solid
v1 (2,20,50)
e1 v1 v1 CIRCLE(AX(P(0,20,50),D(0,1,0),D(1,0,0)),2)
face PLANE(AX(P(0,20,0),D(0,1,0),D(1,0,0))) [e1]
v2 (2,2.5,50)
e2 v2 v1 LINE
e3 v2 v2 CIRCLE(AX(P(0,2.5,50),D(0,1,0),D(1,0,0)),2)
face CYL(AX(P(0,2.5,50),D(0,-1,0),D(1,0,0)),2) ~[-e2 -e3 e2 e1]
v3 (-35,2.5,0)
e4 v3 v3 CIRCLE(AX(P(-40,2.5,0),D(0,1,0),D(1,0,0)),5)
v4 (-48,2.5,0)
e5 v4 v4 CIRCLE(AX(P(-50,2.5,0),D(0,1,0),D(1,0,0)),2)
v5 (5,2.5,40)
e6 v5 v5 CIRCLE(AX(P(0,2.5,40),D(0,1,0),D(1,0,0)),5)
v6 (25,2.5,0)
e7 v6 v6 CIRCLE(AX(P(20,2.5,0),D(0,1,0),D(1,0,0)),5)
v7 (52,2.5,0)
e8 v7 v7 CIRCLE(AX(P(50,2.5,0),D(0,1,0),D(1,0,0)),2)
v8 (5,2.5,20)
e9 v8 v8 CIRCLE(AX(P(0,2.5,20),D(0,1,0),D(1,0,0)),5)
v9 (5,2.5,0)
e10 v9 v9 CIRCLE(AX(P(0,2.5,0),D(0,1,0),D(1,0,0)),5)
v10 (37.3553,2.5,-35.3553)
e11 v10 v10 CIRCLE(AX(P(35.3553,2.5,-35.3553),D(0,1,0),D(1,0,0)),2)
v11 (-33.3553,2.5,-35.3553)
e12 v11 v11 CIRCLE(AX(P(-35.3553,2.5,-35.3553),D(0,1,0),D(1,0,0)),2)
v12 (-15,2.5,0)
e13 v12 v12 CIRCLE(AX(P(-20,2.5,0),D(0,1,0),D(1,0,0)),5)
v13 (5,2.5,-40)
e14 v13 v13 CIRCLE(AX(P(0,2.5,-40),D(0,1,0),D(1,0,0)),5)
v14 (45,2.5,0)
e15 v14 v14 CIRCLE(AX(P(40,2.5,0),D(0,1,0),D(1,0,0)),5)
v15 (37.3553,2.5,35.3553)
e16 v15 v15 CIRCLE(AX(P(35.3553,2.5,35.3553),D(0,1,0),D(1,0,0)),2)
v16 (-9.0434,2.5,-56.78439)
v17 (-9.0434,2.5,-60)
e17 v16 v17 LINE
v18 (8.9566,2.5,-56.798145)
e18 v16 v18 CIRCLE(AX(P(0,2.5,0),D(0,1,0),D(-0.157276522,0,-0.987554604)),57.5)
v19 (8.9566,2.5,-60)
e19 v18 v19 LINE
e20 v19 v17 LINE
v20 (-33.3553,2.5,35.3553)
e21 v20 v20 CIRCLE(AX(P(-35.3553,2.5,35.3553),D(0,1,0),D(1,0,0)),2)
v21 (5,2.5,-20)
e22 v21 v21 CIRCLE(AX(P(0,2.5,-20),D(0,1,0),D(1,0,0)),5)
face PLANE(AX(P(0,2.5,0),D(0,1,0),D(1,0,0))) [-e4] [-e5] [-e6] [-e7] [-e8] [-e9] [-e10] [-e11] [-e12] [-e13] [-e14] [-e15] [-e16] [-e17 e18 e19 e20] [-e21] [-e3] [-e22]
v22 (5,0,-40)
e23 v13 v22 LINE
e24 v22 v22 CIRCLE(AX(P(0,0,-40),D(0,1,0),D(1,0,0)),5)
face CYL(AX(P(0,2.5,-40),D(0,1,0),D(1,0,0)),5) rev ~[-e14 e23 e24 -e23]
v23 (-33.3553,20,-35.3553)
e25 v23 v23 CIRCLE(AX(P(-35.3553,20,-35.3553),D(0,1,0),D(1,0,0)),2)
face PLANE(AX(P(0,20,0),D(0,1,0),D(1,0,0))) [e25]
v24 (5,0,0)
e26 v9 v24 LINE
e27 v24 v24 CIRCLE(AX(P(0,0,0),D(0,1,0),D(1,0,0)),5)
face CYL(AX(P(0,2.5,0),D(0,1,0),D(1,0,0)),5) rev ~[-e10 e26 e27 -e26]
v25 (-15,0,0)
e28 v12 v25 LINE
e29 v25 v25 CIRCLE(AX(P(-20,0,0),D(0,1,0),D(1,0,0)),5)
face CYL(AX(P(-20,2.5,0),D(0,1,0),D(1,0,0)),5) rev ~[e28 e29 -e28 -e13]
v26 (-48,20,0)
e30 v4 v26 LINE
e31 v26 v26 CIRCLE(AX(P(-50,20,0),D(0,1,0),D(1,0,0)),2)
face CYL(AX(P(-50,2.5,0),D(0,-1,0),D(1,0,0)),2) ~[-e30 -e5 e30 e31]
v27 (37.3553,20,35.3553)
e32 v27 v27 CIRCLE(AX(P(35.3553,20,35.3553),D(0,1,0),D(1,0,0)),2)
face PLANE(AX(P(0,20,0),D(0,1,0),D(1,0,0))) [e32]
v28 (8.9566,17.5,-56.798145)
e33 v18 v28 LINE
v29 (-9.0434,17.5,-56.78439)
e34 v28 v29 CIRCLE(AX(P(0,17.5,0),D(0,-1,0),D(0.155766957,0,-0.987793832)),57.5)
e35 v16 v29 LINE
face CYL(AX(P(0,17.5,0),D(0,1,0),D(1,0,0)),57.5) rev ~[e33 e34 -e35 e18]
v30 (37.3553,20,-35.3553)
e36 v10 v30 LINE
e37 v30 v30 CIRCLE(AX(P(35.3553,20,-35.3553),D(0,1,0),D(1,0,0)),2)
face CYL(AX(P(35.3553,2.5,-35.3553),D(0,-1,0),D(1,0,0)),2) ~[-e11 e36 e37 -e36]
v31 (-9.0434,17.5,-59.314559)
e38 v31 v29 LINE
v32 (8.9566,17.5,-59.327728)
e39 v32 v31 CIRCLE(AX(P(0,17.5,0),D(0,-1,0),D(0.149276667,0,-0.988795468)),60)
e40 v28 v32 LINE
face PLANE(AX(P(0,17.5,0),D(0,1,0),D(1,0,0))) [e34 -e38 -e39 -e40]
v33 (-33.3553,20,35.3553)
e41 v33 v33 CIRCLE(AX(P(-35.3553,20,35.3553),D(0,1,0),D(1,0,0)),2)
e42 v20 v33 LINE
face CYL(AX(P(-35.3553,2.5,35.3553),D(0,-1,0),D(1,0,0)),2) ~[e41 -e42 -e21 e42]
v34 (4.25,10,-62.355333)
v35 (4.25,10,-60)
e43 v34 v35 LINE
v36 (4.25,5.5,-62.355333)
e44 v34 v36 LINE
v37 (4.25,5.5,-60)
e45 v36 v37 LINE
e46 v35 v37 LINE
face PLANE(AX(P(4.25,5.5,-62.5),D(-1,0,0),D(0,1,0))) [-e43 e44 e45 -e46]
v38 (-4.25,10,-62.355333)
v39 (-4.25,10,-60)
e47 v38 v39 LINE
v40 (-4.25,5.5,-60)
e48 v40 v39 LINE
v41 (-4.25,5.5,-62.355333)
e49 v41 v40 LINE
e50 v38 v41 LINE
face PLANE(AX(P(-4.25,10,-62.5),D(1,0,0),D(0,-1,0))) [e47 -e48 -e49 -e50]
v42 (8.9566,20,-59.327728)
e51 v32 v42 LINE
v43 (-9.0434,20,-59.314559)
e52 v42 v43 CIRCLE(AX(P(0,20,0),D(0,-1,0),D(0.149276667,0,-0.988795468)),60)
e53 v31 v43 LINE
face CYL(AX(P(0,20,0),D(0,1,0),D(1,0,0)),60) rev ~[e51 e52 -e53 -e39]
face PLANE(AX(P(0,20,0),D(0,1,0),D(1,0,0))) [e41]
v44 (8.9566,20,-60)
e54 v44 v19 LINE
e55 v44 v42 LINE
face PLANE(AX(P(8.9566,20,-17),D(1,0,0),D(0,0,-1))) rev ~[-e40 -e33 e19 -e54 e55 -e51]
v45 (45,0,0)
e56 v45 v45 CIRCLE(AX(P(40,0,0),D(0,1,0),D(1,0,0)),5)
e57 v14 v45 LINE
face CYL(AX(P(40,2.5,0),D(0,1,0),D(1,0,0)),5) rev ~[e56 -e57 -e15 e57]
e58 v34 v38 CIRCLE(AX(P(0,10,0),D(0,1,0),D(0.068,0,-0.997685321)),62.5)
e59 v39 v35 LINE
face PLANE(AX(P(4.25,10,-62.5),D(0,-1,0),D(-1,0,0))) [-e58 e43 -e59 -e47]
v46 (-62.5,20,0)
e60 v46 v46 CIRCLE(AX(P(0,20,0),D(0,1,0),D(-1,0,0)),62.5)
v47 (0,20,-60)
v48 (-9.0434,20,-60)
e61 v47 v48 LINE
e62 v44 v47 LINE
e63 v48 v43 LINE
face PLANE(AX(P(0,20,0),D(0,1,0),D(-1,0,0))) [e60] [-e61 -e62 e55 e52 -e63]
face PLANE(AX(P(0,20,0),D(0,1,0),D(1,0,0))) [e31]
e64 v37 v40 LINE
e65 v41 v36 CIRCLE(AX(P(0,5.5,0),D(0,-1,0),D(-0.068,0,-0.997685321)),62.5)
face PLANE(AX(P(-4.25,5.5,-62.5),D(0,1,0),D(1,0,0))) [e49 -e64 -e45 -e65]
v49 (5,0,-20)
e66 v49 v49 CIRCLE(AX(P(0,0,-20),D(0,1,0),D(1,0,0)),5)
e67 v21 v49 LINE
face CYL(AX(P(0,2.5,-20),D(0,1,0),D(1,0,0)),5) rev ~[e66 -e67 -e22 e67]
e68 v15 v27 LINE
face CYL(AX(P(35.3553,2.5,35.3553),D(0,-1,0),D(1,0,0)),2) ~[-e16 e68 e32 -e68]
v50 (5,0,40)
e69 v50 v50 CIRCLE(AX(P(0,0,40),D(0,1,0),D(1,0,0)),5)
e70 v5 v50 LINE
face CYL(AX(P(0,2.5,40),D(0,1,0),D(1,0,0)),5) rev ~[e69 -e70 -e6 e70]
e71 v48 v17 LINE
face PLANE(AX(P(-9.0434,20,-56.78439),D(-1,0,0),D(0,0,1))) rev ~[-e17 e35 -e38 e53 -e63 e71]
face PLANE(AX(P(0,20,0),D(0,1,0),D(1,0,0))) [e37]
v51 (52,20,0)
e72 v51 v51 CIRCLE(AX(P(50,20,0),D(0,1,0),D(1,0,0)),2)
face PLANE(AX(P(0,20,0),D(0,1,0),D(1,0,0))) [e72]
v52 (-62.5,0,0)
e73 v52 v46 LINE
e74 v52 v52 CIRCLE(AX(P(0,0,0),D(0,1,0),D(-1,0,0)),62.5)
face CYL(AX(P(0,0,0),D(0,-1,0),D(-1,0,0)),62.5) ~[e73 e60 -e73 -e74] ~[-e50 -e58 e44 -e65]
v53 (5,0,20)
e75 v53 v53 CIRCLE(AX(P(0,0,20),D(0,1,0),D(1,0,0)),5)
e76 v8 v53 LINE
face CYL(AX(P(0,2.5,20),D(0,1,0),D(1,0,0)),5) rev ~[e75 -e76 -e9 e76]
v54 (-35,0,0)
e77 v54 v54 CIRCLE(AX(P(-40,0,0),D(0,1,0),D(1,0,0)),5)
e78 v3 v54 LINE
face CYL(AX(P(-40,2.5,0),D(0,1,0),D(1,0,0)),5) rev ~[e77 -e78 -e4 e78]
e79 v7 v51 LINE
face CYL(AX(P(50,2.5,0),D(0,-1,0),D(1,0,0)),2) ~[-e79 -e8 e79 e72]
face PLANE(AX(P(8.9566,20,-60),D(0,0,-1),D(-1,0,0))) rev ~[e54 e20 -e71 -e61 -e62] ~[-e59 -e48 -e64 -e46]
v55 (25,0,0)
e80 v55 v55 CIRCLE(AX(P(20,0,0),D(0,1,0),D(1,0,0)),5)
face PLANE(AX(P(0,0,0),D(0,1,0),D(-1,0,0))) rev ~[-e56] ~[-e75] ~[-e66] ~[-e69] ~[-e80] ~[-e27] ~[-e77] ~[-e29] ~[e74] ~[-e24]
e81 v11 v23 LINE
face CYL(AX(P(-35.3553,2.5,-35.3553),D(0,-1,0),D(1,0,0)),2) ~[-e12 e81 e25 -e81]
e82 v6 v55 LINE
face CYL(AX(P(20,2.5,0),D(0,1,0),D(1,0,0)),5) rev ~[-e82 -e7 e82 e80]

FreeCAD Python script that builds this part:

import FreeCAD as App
import Part
import Sketcher

V = App.Vector

doc = App.newDocument("Part")
body = doc.addObject("PartDesign::Body", "Body")

# Sketch on XZ plane
sketch1 = body.newObject("Sketcher::SketchObject", "Sketch")
sketch1.AttachmentSupport = (doc.getObject("XZ_Plane"), [""])
sketch1.MapMode = "FlatFace"
sketch1.addGeometry(Part.Circle(V(0, 0, 0), V(0, 0, 1), 62.5), False)
sketch1.addConstraint(Sketcher.Constraint("Coincident", 0, 3, -1, 1))
sketch1.addConstraint(Sketcher.Constraint("Diameter", 0, 125.0))
pad1 = body.newObject("PartDesign::Pad", "Pad")
pad1.Profile = sketch1
pad1.Length = 20
pad1.Reversed = True

# Sketch on XZ plane
sketch2 = body.newObject("Sketcher::SketchObject", "Sketch001")
sketch2.AttachmentSupport = (doc.getObject("XZ_Plane"), [""])
sketch2.MapMode = "FlatFace"
sketch2.AttachmentOffset = App.Placement(V(0, 0, -20), App.Rotation())
sketch2.addGeometry(Part.Circle(V(0, 0, 0), V(0, 0, 1), 60), False)
sketch2.addConstraint(Sketcher.Constraint("Coincident", 0, 3, -1, 1))
sketch2.addConstraint(Sketcher.Constraint("Diameter", 0, 120.0))
pocket1 = body.newObject("PartDesign::Pocket", "Pocket")
pocket1.Profile = sketch2
pocket1.Length = 2.5
pocket1.Reversed = True

# Sketch on XZ plane
sketch3 = body.newObject("Sketcher::SketchObject", "Sketch002")
sketch3.AttachmentSupport = (doc.getObject("XZ_Plane"), [""])
sketch3.MapMode = "FlatFace"
sketch3.AttachmentOffset = App.Placement(V(0, 0, -17.5), App.Rotation())
sketch3.addGeometry(Part.Circle(V(0, 0, 0), V(0, 0, 1), 57.5), False)
sketch3.addConstraint(Sketcher.Constraint("Coincident", 0, 3, -1, 1))
sketch3.addConstraint(Sketcher.Constraint("Diameter", 0, 115.0))
pocket2 = body.newObject("PartDesign::Pocket", "Pocket001")
pocket2.Profile = sketch3
pocket2.Length = 15
pocket2.Reversed = True

# Sketch on XZ plane
sketch4 = body.newObject("Sketcher::SketchObject", "Sketch003")
sketch4.AttachmentSupport = (doc.getObject("XZ_Plane"), [""])
sketch4.MapMode = "FlatFace"
sketch4.AttachmentOffset = App.Placement(V(0, 0, -2.5), App.Rotation())
sketch4.addGeometry(Part.Circle(V(0, 0, 0), V(0, 0, 1), 5), False)
sketch4.addGeometry(Part.Circle(V(0, -20, 0), V(0, 0, 1), 5), False)
sketch4.addGeometry(Part.Circle(V(0, -40, 0), V(0, 0, 1), 5), False)
sketch4.addGeometry(Part.Circle(V(20, 0, 0), V(0, 0, 1), 5), False)
sketch4.addGeometry(Part.Circle(V(40, 0, 0), V(0, 0, 1), 5), False)
sketch4.addGeometry(Part.Circle(V(0, 40, 0), V(0, 0, 1), 5), False)
sketch4.addGeometry(Part.Circle(V(0, 20, 0), V(0, 0, 1), 5), False)
sketch4.addGeometry(Part.Circle(V(-20, 0, 0), V(0, 0, 1), 5), False)
sketch4.addGeometry(Part.Circle(V(-40, 0, 0), V(0, 0, 1), 5), False)
sketch4.addConstraint(Sketcher.Constraint("Coincident", 0, 3, -1, 1))
sketch4.addConstraint(Sketcher.Constraint("Equal", 0, 1))
sketch4.addConstraint(Sketcher.Constraint("Equal", 1, 2))
sketch4.addConstraint(Sketcher.Constraint("Equal", 2, 3))
sketch4.addConstraint(Sketcher.Constraint("Equal", 3, 4))
sketch4.addConstraint(Sketcher.Constraint("Equal", 4, 5))
sketch4.addConstraint(Sketcher.Constraint("Equal", 5, 6))
sketch4.addConstraint(Sketcher.Constraint("Equal", 6, 7))
sketch4.addConstraint(Sketcher.Constraint("Equal", 7, 8))
sketch4.addConstraint(Sketcher.Constraint("Symmetric", 2, 3, 5, 3, -1, 1))
sketch4.addConstraint(Sketcher.Constraint("Symmetric", 1, 3, 6, 3, -1, 1))
sketch4.addConstraint(Sketcher.Constraint("Symmetric", 3, 3, 7, 3, -1, 1))
sketch4.addConstraint(Sketcher.Constraint("Symmetric", 4, 3, 8, 3, -1, 1))
sketch4.addConstraint(Sketcher.Constraint("PointOnObject", 1, 3, -2))
sketch4.addConstraint(Sketcher.Constraint("PointOnObject", 2, 3, -2))
sketch4.addConstraint(Sketcher.Constraint("PointOnObject", 3, 3, -1))
sketch4.addConstraint(Sketcher.Constraint("PointOnObject", 4, 3, -1))
sketch4.addConstraint(Sketcher.Constraint("Diameter", 0, 10.0))
sketch4.addConstraint(Sketcher.Constraint("DistanceY", 1, 3, -1, 1, 20.0))
sketch4.addConstraint(Sketcher.Constraint("DistanceX", -1, 1, 3, 3, 20.0))
sketch4.addConstraint(Sketcher.Constraint("DistanceY", 2, 3, 1, 3, 20.0))
sketch4.addConstraint(Sketcher.Constraint("DistanceX", 3, 3, 4, 3, 20.0))
pocket3 = body.newObject("PartDesign::Pocket", "Pocket002")
pocket3.Profile = sketch4
pocket3.Type = "UpToFirst"
pocket3.Reversed = True

# Sketch on XY plane
sketch5 = body.newObject("Sketcher::SketchObject", "Sketch004")
sketch5.AttachmentSupport = (doc.getObject("XY_Plane"), [""])
sketch5.MapMode = "FlatFace"
sketch5.AttachmentOffset = App.Placement(V(0, 0, -62.5), App.Rotation())
sketch5.addGeometry(Part.LineSegment(V(4.25, 5.5, 0), V(4.25, 10, 0)), False)
sketch5.addGeometry(Part.LineSegment(V(4.25, 10, 0), V(-4.25, 10, 0)), False)
sketch5.addGeometry(Part.LineSegment(V(-4.25, 10, 0), V(-4.25, 5.5, 0)), False)
sketch5.addGeometry(Part.LineSegment(V(-4.25, 5.5, 0), V(4.25, 5.5, 0)), False)
sketch5.addConstraint(Sketcher.Constraint("Coincident", 0, 2, 1, 1))
sketch5.addConstraint(Sketcher.Constraint("Coincident", 1, 2, 2, 1))
sketch5.addConstraint(Sketcher.Constraint("Coincident", 2, 2, 3, 1))
sketch5.addConstraint(Sketcher.Constraint("Coincident", 3, 2, 0, 1))
sketch5.addConstraint(Sketcher.Constraint("Vertical", 0))
sketch5.addConstraint(Sketcher.Constraint("Horizontal", 1))
sketch5.addConstraint(Sketcher.Constraint("Vertical", 2))
sketch5.addConstraint(Sketcher.Constraint("Horizontal", 3))
sketch5.addConstraint(Sketcher.Constraint("DistanceX", 1, 2, 1, 1, 8.5))
sketch5.addConstraint(Sketcher.Constraint("DistanceY", 0, 1, 0, 2, 4.5))
sketch5.addConstraint(Sketcher.Constraint("DistanceY", -1, 1, 0, 2, 10.0))
sketch5.addConstraint(Sketcher.Constraint("DistanceX", -1, 1, 0, 2, 4.25))
pocket4 = body.newObject("PartDesign::Pocket", "Pocket003")
pocket4.Profile = sketch5
pocket4.Length = 17.5
pocket4.Reversed = True

# Sketch on XZ plane
sketch6 = body.newObject("Sketcher::SketchObject", "Sketch005")
sketch6.AttachmentSupport = (doc.getObject("XZ_Plane"), [""])
sketch6.MapMode = "FlatFace"
sketch6.AttachmentOffset = App.Placement(V(0, 0, -2.5), App.Rotation())
sketch6.addGeometry(Part.Circle(V(-35.3553, -35.3553, 0), V(0, 0, 1), 2), False)
sketch6.addGeometry(Part.Circle(V(35.3553, -35.3553, 0), V(0, 0, 1), 2), False)
sketch6.addGeometry(Part.Circle(V(50, 0, 0), V(0, 0, 1), 2), False)
sketch6.addGeometry(Part.Circle(V(35.3553, 35.3553, 0), V(0, 0, 1), 2), False)
sketch6.addGeometry(Part.Circle(V(0, 50, 0), V(0, 0, 1), 2), False)
sketch6.addGeometry(Part.Circle(V(-35.3553, 35.3553, 0), V(0, 0, 1), 2), False)
sketch6.addGeometry(Part.Circle(V(-50, 0, 0), V(0, 0, 1), 2), False)
sketch6.addConstraint(Sketcher.Constraint("Equal", 0, 1))
sketch6.addConstraint(Sketcher.Constraint("Equal", 1, 2))
sketch6.addConstraint(Sketcher.Constraint("Equal", 2, 3))
sketch6.addConstraint(Sketcher.Constraint("Equal", 3, 4))
sketch6.addConstraint(Sketcher.Constraint("Equal", 4, 5))
sketch6.addConstraint(Sketcher.Constraint("Equal", 5, 6))
sketch6.addConstraint(Sketcher.Constraint("Symmetric", 0, 3, 3, 3, -1, 1))
sketch6.addConstraint(Sketcher.Constraint("Symmetric", 1, 3, 5, 3, -1, 1))
sketch6.addConstraint(Sketcher.Constraint("Symmetric", 2, 3, 6, 3, -1, 1))
sketch6.addConstraint(Sketcher.Constraint("Symmetric", 0, 3, 1, 3, -2))
sketch6.addConstraint(Sketcher.Constraint("PointOnObject", 2, 3, -1))
sketch6.addConstraint(Sketcher.Constraint("PointOnObject", 4, 3, -2))
sketch6.addConstraint(Sketcher.Constraint("Diameter", 0, 4.0))
sketch6.addConstraint(Sketcher.Constraint("DistanceX", -1, 1, 2, 3, 50.0))
sketch6.addConstraint(Sketcher.Constraint("DistanceY", -1, 1, 4, 3, 50.0))
sketch6.addConstraint(Sketcher.Constraint("DistanceX", 0, 3, -1, 1, 35.3553))
sketch6.addConstraint(Sketcher.Constraint("DistanceY", 0, 3, -1, 1, 35.3553))
pad2 = body.newObject("PartDesign::Pad", "Pad001")
pad2.Profile = sketch6
pad2.Length = 17.5
pad2.Reversed = True

# Sketch on XZ plane
sketch7 = body.newObject("Sketcher::SketchObject", "Sketch006")
sketch7.AttachmentSupport = (doc.getObject("XZ_Plane"), [""])
sketch7.MapMode = "FlatFace"
sketch7.AttachmentOffset = App.Placement(V(0, 0, -20), App.Rotation())
sketch7.addGeometry(Part.LineSegment(V(8.9566, -17, 0), V(8.9566, -60, 0)), False)
sketch7.addGeometry(Part.LineSegment(V(8.9566, -60, 0), V(-9.0434, -60, 0)), False)
sketch7.addGeometry(Part.LineSegment(V(-9.0434, -60, 0), V(-9.0434, -17, 0)), False)
sketch7.addGeometry(Part.LineSegment(V(-9.0434, -17, 0), V(8.9566, -17, 0)), False)
sketch7.addGeometry(Part.Circle(V(0, -40, 0), V(0, 0, 1), 5), False)
sketch7.addConstraint(Sketcher.Constraint("Coincident", 0, 2, 1, 1))
sketch7.addConstraint(Sketcher.Constraint("Coincident", 1, 2, 2, 1))
sketch7.addConstraint(Sketcher.Constraint("Coincident", 2, 2, 3, 1))
sketch7.addConstraint(Sketcher.Constraint("Coincident", 3, 2, 0, 1))
sketch7.addConstraint(Sketcher.Constraint("Vertical", 0))
sketch7.addConstraint(Sketcher.Constraint("Horizontal", 1))
sketch7.addConstraint(Sketcher.Constraint("Vertical", 2))
sketch7.addConstraint(Sketcher.Constraint("Horizontal", 3))
sketch7.addConstraint(Sketcher.Constraint("PointOnObject", 4, 3, -2))
sketch7.addConstraint(Sketcher.Constraint("DistanceX", 1, 2, 1, 1, 18.0))
sketch7.addConstraint(Sketcher.Constraint("DistanceY", 0, 2, 0, 1, 43.0))
sketch7.addConstraint(Sketcher.Constraint("Diameter", 4, 10.0))
sketch7.addConstraint(Sketcher.Constraint("DistanceY", 4, 3, -1, 1, 40.0))
sketch7.addConstraint(Sketcher.Constraint("DistanceY", 0, 2, -1, 1, 60.0))
sketch7.addConstraint(Sketcher.Constraint("DistanceX", -1, 1, 0, 2, 8.9566))
pocket5 = body.newObject("PartDesign::Pocket", "Pocket004")
pocket5.Profile = sketch7
pocket5.Length = 17.5
pocket5.Reversed = True

doc.recompute()
